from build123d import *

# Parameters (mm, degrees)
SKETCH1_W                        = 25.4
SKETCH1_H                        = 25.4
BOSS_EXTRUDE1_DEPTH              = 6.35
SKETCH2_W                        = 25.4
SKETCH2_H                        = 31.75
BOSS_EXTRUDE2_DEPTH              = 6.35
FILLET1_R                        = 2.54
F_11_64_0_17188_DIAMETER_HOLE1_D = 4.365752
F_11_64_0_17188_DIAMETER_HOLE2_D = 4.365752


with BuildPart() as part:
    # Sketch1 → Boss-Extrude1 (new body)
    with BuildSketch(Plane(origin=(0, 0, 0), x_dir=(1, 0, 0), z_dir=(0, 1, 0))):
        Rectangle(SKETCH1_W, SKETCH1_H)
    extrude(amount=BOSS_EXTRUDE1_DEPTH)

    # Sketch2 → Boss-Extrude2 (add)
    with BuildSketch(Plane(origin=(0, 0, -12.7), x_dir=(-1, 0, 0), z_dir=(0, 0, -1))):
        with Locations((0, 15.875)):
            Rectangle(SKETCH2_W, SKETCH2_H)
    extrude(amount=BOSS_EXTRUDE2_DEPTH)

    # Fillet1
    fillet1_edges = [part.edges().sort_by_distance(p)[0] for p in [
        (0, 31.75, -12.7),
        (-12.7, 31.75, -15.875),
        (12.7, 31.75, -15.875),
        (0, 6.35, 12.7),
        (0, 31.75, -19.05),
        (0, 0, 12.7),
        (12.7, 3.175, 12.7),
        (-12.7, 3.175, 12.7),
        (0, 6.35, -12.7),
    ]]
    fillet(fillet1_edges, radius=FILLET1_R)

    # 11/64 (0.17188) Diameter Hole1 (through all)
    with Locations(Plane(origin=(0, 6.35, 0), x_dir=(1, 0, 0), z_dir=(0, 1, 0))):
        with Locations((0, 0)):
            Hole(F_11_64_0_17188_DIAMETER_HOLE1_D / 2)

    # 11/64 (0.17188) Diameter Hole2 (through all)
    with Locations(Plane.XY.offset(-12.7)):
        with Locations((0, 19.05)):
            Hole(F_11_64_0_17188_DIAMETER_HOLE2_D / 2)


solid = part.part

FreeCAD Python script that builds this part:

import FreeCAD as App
import Part
import Sketcher

V = App.Vector
Q = App.Units.Quantity


def edges_at(feature, points):
    """Names of the edges that pass closest to the given points."""
    edges = feature.Shape.Edges
    near = lambda p: min(range(len(edges)), key=lambda i: edges[i].distToShape(Part.Vertex(*p))[0])
    return sorted({f"Edge{near(p) + 1}" for p in points})

doc = App.newDocument("Part")
body = doc.addObject("PartDesign::Body", "Body")

sketch1 = body.newObject("Sketcher::SketchObject", "Sketch")
sketch1.AttachmentSupport = (doc.getObject("XZ_Plane"), [""])
sketch1.MapMode = "FlatFace"
sketch1.addGeometry([
    Part.LineSegment(V(-13, -13, 0), V(-13, 13, 0)),
    Part.LineSegment(V(-13, 13, 0), V(13, 13, 0)),
    Part.LineSegment(V(13, 13, 0), V(13, -13, 0)),
    Part.LineSegment(V(13, -13, 0), V(-13, -13, 0)),
], False)
sketch1.addConstraint([
    Sketcher.Constraint("Coincident", 0, 2, 1, 1),
    Sketcher.Constraint("Coincident", 1, 2, 2, 1),
    Sketcher.Constraint("Coincident", 2, 2, 3, 1),
    Sketcher.Constraint("Coincident", 3, 2, 0, 1),
    Sketcher.Constraint("Vertical", 0),
    Sketcher.Constraint("Horizontal", 1),
    Sketcher.Constraint("Vertical", 2),
    Sketcher.Constraint("Horizontal", 3),
    Sketcher.Constraint("Symmetric", 0, 2, 2, 2, -1, 1),
    Sketcher.Constraint("Equal", 3, 0),
    Sketcher.Constraint("DistanceX", 1, 1, 1, 2, Q("1 in")),
])
pad1 = body.newObject("PartDesign::Pad", "Pad")
pad1.Profile = sketch1
pad1.Length = Q("0.25 in")
pad1.Reversed = True

sketch2 = body.newObject("Sketcher::SketchObject", "Sketch001")
sketch2.AttachmentSupport = (doc.getObject("XY_Plane"), [""])
sketch2.MapMode = "FlatFace"
sketch2.AttachmentOffset = App.Placement(V(0, 0, -0.5 * 25.4), App.Rotation())
sketch2.addGeometry([
    Part.LineSegment(V(13, 32, 0), V(13, 0, 0)),
    Part.LineSegment(V(13, 0, 0), V(-13, 0, 0)),
    Part.LineSegment(V(-13, 0, 0), V(-13, 32, 0)),
    Part.LineSegment(V(-13, 32, 0), V(13, 32, 0)),
], False)
sketch2.addConstraint([
    Sketcher.Constraint("Coincident", 0, 2, 1, 1),
    Sketcher.Constraint("Coincident", 1, 2, 2, 1),
    Sketcher.Constraint("Coincident", 2, 2, 3, 1),
    Sketcher.Constraint("Coincident", 3, 2, 0, 1),
    Sketcher.Constraint("Vertical", 0),
    Sketcher.Constraint("Horizontal", 1),
    Sketcher.Constraint("Vertical", 2),
    Sketcher.Constraint("Horizontal", 3),
    Sketcher.Constraint("Symmetric", 0, 2, 1, 2, -1, 1),
    Sketcher.Constraint("DistanceX", 1, 2, 1, 1, Q("1 in")),
    Sketcher.Constraint("DistanceY", 0, 2, 0, 1, Q("1.25 in")),
])
pad2 = body.newObject("PartDesign::Pad", "Pad001")
pad2.Profile = sketch2
pad2.Length = Q("0.25 in")
pad2.Reversed = True
doc.recompute()

fillet = body.newObject("PartDesign::Fillet", "Fillet")
fillet.Base = (pad2, edges_at(pad2, [
    (0, 31.75, -12.7),
    (-12.7, 31.75, -15.875),
    (12.7, 31.75, -15.875),
    (0, 6.35, 12.7),
    (0, 31.75, -19.05),
    (0, 0, 12.7),
    (12.7, 3.175, 12.7),
    (-12.7, 3.175, 12.7),
    (0, 6.35, -12.7),
]))
fillet.Radius = Q("0.1 in")

sketch3 = body.newObject("Sketcher::SketchObject", "Sketch002")
sketch3.AttachmentSupport = (doc.getObject("XZ_Plane"), [""])
sketch3.MapMode = "FlatFace"
sketch3.AttachmentOffset = App.Placement(V(0, 0, -0.25 * 25.4), App.Rotation())
sketch3.addGeometry(Part.Circle(V(0, 0, 0), V(0, 0, 1), 2.2), False)
sketch3.addConstraint([
    Sketcher.Constraint("Coincident", 0, 3, -1, 1),
    Sketcher.Constraint("Diameter", 0, 4.365752),
])
doc.recompute()
hole = body.newObject("PartDesign::Hole", "Hole")
hole.Profile = sketch3
hole.ThreadType = "None"
hole.Diameter = 4.365752
hole.DepthType = "ThroughAll"
hole.Reversed = True

sketch4 = body.newObject("Sketcher::SketchObject", "Sketch003")
sketch4.AttachmentSupport = (doc.getObject("XY_Plane"), [""])
sketch4.MapMode = "FlatFace"
sketch4.AttachmentOffset = App.Placement(V(0, 0, -0.5 * 25.4), App.Rotation())
sketch4.addGeometry(Part.Circle(V(0, 19.1, 0), V(0, 0, 1), 2.2), False)
sketch4.addConstraint([
    Sketcher.Constraint("PointOnObject", 0, 3, -2),
    Sketcher.Constraint("DistanceY", -1, 1, 0, 3, Q("0.75 in")),
    Sketcher.Constraint("Diameter", 0, 4.365752),
])
doc.recompute()
hole2 = body.newObject("PartDesign::Hole", "Hole001")
hole2.Profile = sketch4
hole2.ThreadType = "None"
hole2.Diameter = 4.365752
hole2.DepthType = "ThroughAll"

doc.recompute()
